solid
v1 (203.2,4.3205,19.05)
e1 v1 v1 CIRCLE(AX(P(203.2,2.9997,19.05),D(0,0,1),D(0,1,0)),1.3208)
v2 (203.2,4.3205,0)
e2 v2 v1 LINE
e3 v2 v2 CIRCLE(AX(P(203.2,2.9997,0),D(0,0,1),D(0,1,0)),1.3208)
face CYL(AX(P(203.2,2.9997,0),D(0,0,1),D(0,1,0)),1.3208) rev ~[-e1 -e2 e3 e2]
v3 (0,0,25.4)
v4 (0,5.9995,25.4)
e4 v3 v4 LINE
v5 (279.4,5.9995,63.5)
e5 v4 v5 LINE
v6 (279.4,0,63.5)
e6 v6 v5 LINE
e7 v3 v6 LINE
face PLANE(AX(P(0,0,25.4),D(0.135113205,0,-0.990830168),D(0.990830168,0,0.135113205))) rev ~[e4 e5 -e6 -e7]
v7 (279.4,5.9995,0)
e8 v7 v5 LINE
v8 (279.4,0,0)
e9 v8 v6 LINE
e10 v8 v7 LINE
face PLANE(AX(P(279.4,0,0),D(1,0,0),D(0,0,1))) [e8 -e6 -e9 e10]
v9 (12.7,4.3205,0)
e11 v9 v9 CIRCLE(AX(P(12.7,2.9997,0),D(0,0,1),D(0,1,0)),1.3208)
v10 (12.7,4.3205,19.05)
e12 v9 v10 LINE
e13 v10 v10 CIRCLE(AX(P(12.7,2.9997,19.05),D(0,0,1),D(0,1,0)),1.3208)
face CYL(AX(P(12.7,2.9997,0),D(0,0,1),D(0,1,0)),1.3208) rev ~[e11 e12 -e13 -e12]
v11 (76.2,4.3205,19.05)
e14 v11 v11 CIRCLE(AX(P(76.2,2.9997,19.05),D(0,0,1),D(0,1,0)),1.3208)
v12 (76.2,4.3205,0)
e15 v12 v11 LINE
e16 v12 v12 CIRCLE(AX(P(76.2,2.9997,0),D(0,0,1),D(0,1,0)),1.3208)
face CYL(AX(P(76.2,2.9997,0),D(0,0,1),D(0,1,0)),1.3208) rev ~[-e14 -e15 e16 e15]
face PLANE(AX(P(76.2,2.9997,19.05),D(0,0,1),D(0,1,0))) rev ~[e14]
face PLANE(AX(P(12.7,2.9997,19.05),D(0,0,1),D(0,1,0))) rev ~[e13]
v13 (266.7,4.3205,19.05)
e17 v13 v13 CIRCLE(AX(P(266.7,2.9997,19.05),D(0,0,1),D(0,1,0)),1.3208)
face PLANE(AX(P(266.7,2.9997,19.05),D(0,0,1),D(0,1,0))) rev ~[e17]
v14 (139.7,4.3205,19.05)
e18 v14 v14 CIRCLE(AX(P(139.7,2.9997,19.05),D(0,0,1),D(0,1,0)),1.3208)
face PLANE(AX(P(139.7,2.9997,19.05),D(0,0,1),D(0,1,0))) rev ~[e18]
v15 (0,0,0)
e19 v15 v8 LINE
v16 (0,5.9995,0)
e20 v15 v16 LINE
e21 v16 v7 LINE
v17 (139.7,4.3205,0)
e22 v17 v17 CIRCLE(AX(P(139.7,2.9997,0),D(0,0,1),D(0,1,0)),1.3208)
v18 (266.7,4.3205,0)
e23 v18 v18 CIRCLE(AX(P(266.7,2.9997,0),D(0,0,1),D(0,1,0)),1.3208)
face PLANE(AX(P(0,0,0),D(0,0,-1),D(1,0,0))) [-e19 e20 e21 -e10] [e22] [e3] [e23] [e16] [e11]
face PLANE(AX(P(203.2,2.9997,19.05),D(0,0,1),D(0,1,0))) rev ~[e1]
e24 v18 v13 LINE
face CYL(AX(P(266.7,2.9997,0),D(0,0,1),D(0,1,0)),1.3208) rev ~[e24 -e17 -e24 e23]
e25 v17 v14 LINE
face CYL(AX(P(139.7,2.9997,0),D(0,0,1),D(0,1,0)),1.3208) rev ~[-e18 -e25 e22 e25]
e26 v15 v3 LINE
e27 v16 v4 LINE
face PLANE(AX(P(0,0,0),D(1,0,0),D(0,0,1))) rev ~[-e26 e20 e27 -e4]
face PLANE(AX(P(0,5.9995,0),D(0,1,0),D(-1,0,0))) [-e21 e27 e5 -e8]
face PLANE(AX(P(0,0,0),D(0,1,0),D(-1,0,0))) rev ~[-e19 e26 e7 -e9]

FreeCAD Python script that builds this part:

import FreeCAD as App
import Part
import Sketcher
from FreeCAD import Vector
Q = App.Units.Quantity

doc = App.newDocument("Part")
body = doc.addObject("PartDesign::Body", "Body")

sketch1 = body.newObject("Sketcher::SketchObject", "Sketch")
sketch1.AttachmentSupport = (doc.getObject("XZ_Plane"), [""])
sketch1.MapMode = "FlatFace"
sketch1.addGeometry([
    Part.LineSegment(Vector(279, 0, 0), Vector(0, 0, 0)),
    Part.LineSegment(Vector(0, 0, 0), Vector(0, 25, 0)),
    Part.LineSegment(Vector(0, 25, 0), Vector(279, 64, 0)),
    Part.LineSegment(Vector(279, 64, 0), Vector(279, 0, 0)),
], False)
sketch1.addConstraint([
    Sketcher.Constraint("Coincident", 0, 2, 1, 1),
    Sketcher.Constraint("Coincident", 1, 2, 2, 1),
    Sketcher.Constraint("Coincident", 2, 2, 3, 1),
    Sketcher.Constraint("Coincident", 3, 2, 0, 1),
    Sketcher.Constraint("Horizontal", 0),
    Sketcher.Constraint("Vertical", 1),
    Sketcher.Constraint("Vertical", 3),
    Sketcher.Constraint("Coincident", 0, 2, -1, 1),
    Sketcher.Constraint("DistanceX", 0, 2, 0, 1, Q("11 in")),
    Sketcher.Constraint("DistanceY", 1, 1, 1, 2, Q("1 in")),
    Sketcher.Constraint("DistanceY", 3, 2, 3, 1, Q("2.5 in")),
])
pad1 = body.newObject("PartDesign::Pad", "Pad")
pad1.Profile = sketch1
pad1.Length = Q("0.2362008 in")
pad1.Reversed = True

sketch2 = body.newObject("Sketcher::SketchObject", "Sketch001")
sketch2.AttachmentSupport = (doc.getObject("XY_Plane"), [""])
sketch2.MapMode = "FlatFace"
sketch2.addGeometry([
    Part.Circle(Vector(266.7, 3, 0), Vector(0, 0, 1), 1.3),
    Part.Circle(Vector(203.2, 3, 0), Vector(0, 0, 1), 1.3),
    Part.Circle(Vector(139.7, 3, 0), Vector(0, 0, 1), 1.3),
    Part.Circle(Vector(76.2, 3, 0), Vector(0, 0, 1), 1.3),
    Part.Circle(Vector(12.7, 3, 0), Vector(0, 0, 1), 1.3),
], False)
sketch2.addConstraint([
    Sketcher.Constraint("Equal", 0, 1),
    Sketcher.Constraint("Equal", 1, 2),
    Sketcher.Constraint("Equal", 2, 3),
    Sketcher.Constraint("Equal", 3, 4),
    Sketcher.Constraint("Horizontal", 0, 3, 1, 3),
    Sketcher.Constraint("Horizontal", 1, 3, 2, 3),
    Sketcher.Constraint("Horizontal", 2, 3, 3, 3),
    Sketcher.Constraint("Horizontal", 3, 3, 4, 3),
    Sketcher.Constraint("Diameter", 0, Q("0.104 in")),
    Sketcher.Constraint("DistanceX", -1, 1, 1, 3, Q("8 in")),
    Sketcher.Constraint("DistanceX", -1, 1, 3, 3, Q("3 in")),
    Sketcher.Constraint("DistanceX", 2, 3, 0, 3, Q("5 in")),
    Sketcher.Constraint("DistanceX", 4, 3, 2, 3, Q("5 in")),
    Sketcher.Constraint("DistanceX", -1, 1, 0, 3, Q("10.5 in")),
    Sketcher.Constraint("DistanceY", -1, 1, 0, 3, Q("0.1181 in")),
])
doc.recompute()
hole = body.newObject("PartDesign::Hole", "Hole")
hole.Profile = sketch2
hole.ThreadType = "None"
hole.Diameter = Q("0.104 in")
hole.DepthType = "Dimension"
hole.Depth = Q("0.75 in")
hole.DrillPoint = "Flat"
hole.Reversed = True

doc.recompute()
